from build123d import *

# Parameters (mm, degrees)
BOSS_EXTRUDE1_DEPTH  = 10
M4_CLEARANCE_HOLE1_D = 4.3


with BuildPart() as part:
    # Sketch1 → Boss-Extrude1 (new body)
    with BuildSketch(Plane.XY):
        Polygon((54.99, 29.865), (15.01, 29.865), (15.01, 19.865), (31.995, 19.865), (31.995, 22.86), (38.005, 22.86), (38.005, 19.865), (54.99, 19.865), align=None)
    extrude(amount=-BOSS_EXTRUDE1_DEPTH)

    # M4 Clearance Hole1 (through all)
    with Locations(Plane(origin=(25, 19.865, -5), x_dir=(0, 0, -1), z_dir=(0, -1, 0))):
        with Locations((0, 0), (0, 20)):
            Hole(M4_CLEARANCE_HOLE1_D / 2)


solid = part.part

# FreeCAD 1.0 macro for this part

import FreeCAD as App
import Part
import Sketcher
from FreeCAD import Vector


def add_polygon(sketch, points):
    """Adds a closed chain of lines whose ends are joined by coincident constraints."""
    first, n = sketch.GeometryCount, len(points)
    for a, b in zip(points, points[1:] + points[:1]):
        sketch.addGeometry(Part.LineSegment(App.Vector(*a, 0), App.Vector(*b, 0)), False)
    for i in range(n):
        sketch.addConstraint(Sketcher.Constraint("Coincident", first + i, 2, first + (i + 1) % n, 1))

doc = App.newDocument("Part")
body = doc.addObject("PartDesign::Body", "Body")

sketch1 = doc.addObject("Sketcher::SketchObject", "Sketch")
body.addObject(sketch1)
sketch1.AttachmentSupport = (doc.XY_Plane, [""])
sketch1.MapMode = "FlatFace"
add_polygon(sketch1, [(54.99, 29.865), (15.01, 29.865), (15.01, 19.865), (31.995, 19.865), (31.995, 22.86), (38.005, 22.86), (38.005, 19.865), (54.99, 19.865)])
sketch1.addConstraint([
    Sketcher.Constraint("Horizontal", 0),
    Sketcher.Constraint("Vertical", 1),
    Sketcher.Constraint("Horizontal", 2),
    Sketcher.Constraint("Vertical", 3),
    Sketcher.Constraint("Horizontal", 4),
    Sketcher.Constraint("Vertical", 5),
    Sketcher.Constraint("Horizontal", 6),
    Sketcher.Constraint("Vertical", 7),
    Sketcher.Constraint("Horizontal", 2, 2, 5, 2),
    Sketcher.Constraint("Equal", 2, 6),
    Sketcher.Constraint("DistanceY", 1, 2, 1, 1, 10.0),
    Sketcher.Constraint("DistanceX", 0, 2, 0, 1, 39.98),
    Sketcher.Constraint("DistanceX", 4, 1, 4, 2, 6.01),
    Sketcher.Constraint("DistanceY", 3, 1, 3, 2, 2.995),
    Sketcher.Constraint("DistanceX", -1, 1, 0, 2, 15.01),
    Sketcher.Constraint("DistanceY", -1, 1, 3, 2, 22.86),
])
pad1 = doc.addObject("PartDesign::Pad", "Pad")
body.addObject(pad1)
pad1.Profile = sketch1
pad1.Length = 10
pad1.Reversed = True

sketch2 = doc.addObject("Sketcher::SketchObject", "Sketch001")
body.addObject(sketch2)
sketch2.AttachmentSupport = (doc.XZ_Plane, [""])
sketch2.MapMode = "FlatFace"
sketch2.AttachmentOffset = App.Placement(Vector(0, 0, -19.865), App.Rotation())
sketch2.addGeometry([
    Part.Circle(Vector(25, -5, 0), Vector(0, 0, 1), 2.15),
    Part.Circle(Vector(45, -5, 0), Vector(0, 0, 1), 2.15),
], False)
sketch2.addConstraint([
    Sketcher.Constraint("Equal", 0, 1),
    Sketcher.Constraint("Horizontal", 0, 3, 1, 3),
    Sketcher.Constraint("Diameter", 0, 4.3),
    Sketcher.Constraint("DistanceX", -1, 1, 0, 3, 25.0),
    Sketcher.Constraint("DistanceY", 0, 3, -1, 1, 5.0),
    Sketcher.Constraint("DistanceX", -1, 1, 1, 3, 45.0),
])
doc.recompute()
hole = doc.addObject("PartDesign::Hole", "Hole")
body.addObject(hole)
hole.Profile = sketch2
hole.ThreadType = "None"
hole.Diameter = 4.3
hole.DepthType = "ThroughAll"

doc.recompute()
